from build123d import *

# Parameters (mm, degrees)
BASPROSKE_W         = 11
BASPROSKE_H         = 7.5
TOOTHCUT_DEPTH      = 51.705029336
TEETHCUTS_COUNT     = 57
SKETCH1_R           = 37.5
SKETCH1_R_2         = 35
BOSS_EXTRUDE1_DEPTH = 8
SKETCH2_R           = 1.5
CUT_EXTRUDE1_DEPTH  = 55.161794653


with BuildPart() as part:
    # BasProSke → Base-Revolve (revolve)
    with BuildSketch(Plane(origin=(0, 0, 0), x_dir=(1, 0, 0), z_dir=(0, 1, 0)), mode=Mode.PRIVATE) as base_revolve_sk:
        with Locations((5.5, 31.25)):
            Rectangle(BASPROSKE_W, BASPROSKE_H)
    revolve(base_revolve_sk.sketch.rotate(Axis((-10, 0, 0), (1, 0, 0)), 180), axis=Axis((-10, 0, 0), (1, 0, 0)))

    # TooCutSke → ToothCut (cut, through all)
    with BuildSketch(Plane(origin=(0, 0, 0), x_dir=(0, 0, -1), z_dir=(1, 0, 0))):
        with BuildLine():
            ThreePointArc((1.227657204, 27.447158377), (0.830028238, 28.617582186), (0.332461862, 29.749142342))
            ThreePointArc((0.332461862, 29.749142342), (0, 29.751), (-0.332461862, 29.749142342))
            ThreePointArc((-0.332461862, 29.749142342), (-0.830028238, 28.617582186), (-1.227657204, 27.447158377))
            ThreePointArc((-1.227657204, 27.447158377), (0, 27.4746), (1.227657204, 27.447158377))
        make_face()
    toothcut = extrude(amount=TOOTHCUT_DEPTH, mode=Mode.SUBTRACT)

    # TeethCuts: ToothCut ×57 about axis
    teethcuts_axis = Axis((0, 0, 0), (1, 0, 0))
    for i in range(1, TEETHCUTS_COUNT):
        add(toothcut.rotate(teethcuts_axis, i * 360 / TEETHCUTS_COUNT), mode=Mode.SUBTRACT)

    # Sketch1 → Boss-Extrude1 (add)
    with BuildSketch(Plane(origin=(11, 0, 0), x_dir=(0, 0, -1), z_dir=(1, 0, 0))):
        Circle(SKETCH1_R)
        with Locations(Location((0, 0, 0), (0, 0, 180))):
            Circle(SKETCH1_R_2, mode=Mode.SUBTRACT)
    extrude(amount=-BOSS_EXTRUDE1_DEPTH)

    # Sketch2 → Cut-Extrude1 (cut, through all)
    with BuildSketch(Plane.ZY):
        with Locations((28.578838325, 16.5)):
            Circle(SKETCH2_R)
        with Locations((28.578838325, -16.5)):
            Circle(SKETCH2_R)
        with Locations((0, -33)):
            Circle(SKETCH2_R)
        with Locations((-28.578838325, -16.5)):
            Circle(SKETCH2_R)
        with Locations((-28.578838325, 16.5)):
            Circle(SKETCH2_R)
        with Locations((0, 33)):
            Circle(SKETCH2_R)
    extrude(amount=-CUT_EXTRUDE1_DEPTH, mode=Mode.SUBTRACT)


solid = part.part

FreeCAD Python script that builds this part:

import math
import FreeCAD as App
import Part
import Sketcher
from FreeCAD import Vector


def add_polygon(sketch, points):
    """Adds a closed chain of lines whose ends are joined by coincident constraints."""
    first, n = sketch.GeometryCount, len(points)
    for a, b in zip(points, points[1:] + points[:1]):
        sketch.addGeometry(Part.LineSegment(App.Vector(*a, 0), App.Vector(*b, 0)), False)
    for i in range(n):
        sketch.addConstraint(Sketcher.Constraint("Coincident", first + i, 2, first + (i + 1) % n, 1))

doc = App.newDocument("Part")
body = doc.addObject("PartDesign::Body", "Body")

sketch1 = body.newObject("Sketcher::SketchObject", "Sketch")
sketch1.AttachmentSupport = (doc.getObject("XZ_Plane"), [""])
sketch1.MapMode = "FlatFace"
add_polygon(sketch1, [(0, -35), (0, -28), (11, -28), (11, -35)])
sketch1.addConstraint([
    Sketcher.Constraint("Vertical", 0),
    Sketcher.Constraint("Horizontal", 1),
    Sketcher.Constraint("Vertical", 2),
    Sketcher.Constraint("Horizontal", 3),
    Sketcher.Constraint("PointOnObject", 0, 2, -2),
    Sketcher.Constraint("DistanceX", 1, 1, 1, 2, 11.0),
    Sketcher.Constraint("DistanceY", 0, 1, 0, 2, 7.5),
    Sketcher.Constraint("DistanceY", 2, 2, -1, 1, 35.0),
])
revolution = body.newObject("PartDesign::Revolution", "Revolution")
revolution.Profile = sketch1
revolution.ReferenceAxis = (sketch1, ["H_Axis"])
revolution.Angle = 360

sketch2 = body.newObject("Sketcher::SketchObject", "Sketch001")
sketch2.AttachmentSupport = (doc.getObject("YZ_Plane"), [""])
sketch2.MapMode = "FlatFace"
sketch2.addGeometry([
    Part.ArcOfCircle(Part.Circle(Vector(23.5, 12.5, 0), Vector(0, 0, 1), 14.2), math.radians(-73.72), math.radians(-63.78)),
    Part.ArcOfCircle(Part.Circle(Vector(0, 0, 0), Vector(0, 0, 1), 29.8), math.radians(-0.64), math.radians(0.64)),
    Part.ArcOfCircle(Part.Circle(Vector(23.5, -12.5, 0), Vector(0, 0, 1), 14.2), math.radians(63.78), math.radians(73.72)),
    Part.ArcOfCircle(Part.Circle(Vector(0, 0, 0), Vector(0, 0, 1), 27.5), math.radians(-2.56), math.radians(2.56)),
], False)
sketch2.addConstraint([
    Sketcher.Constraint("Coincident", 0, 2, 1, 1),
    Sketcher.Constraint("Coincident", 1, 2, 2, 1),
    Sketcher.Constraint("Coincident", 2, 2, 3, 2),
    Sketcher.Constraint("Coincident", 3, 1, 0, 1),
    Sketcher.Constraint("Coincident", 1, 3, -1, 1),
    Sketcher.Constraint("Coincident", 3, 3, -1, 1),
    Sketcher.Constraint("Equal", 0, 2),
    Sketcher.Constraint("Symmetric", 0, 3, 2, 3, -1),
    Sketcher.Constraint("Radius", 0, 14.25),
    Sketcher.Constraint("Radius", 3, 27.4746),
    Sketcher.Constraint("Radius", 1, 29.750993),
    Sketcher.Constraint("DistanceY", -1, 1, 0, 3, 12.451079),
    Sketcher.Constraint("DistanceY", 0, 2, -1, 1, 0.332462),
])
pocket1 = body.newObject("PartDesign::Pocket", "Pocket")
pocket1.Profile = sketch2
pocket1.Type = "ThroughAll"
pocket1.Reversed = True
doc.recompute()

polarpattern = body.newObject("PartDesign::PolarPattern", "PolarPattern")
polarpattern.Originals = [pocket1]
polarpattern.Axis = (doc.getObject("X_Axis"), [""])
polarpattern.Angle = 360
polarpattern.Occurrences = 57
body.Tip = polarpattern

sketch3 = body.newObject("Sketcher::SketchObject", "Sketch002")
sketch3.AttachmentSupport = (doc.getObject("YZ_Plane"), [""])
sketch3.MapMode = "FlatFace"
sketch3.AttachmentOffset = App.Placement(Vector(0, 0, 11), App.Rotation())
sketch3.addGeometry([
    Part.Circle(Vector(0, 0, 0), Vector(0, 0, 1), 38),
    Part.Circle(Vector(0, 0, 0), Vector(0, 0, 1), 35),
], False)
sketch3.addConstraint([
    Sketcher.Constraint("Coincident", 0, 3, -1, 1),
    Sketcher.Constraint("Coincident", 1, 3, -1, 1),
    Sketcher.Constraint("Diameter", 0, 75.0),
    Sketcher.Constraint("Diameter", 1, 70.0),
])
pad1 = body.newObject("PartDesign::Pad", "Pad")
pad1.Profile = sketch3
pad1.Length = 8
pad1.Reversed = True

sketch4 = body.newObject("Sketcher::SketchObject", "Sketch003")
sketch4.AttachmentSupport = (doc.getObject("YZ_Plane"), [""])
sketch4.MapMode = "FlatFace"
sketch4.addGeometry([
    Part.Circle(Vector(16.5, 28.6, 0), Vector(0, 0, 1), 1.5),
    Part.Circle(Vector(-16.5, 28.6, 0), Vector(0, 0, 1), 1.5),
    Part.Circle(Vector(-33, 0, 0), Vector(0, 0, 1), 1.5),
    Part.Circle(Vector(-16.5, -28.6, 0), Vector(0, 0, 1), 1.5),
    Part.Circle(Vector(16.5, -28.6, 0), Vector(0, 0, 1), 1.5),
    Part.Circle(Vector(33, 0, 0), Vector(0, 0, 1), 1.5),
], False)
sketch4.addConstraint([
    Sketcher.Constraint("Equal", 0, 1),
    Sketcher.Constraint("Equal", 1, 2),
    Sketcher.Constraint("Equal", 2, 3),
    Sketcher.Constraint("Equal", 3, 4),
    Sketcher.Constraint("Equal", 4, 5),
    Sketcher.Constraint("Symmetric", 0, 3, 3, 3, -1, 1),
    Sketcher.Constraint("Symmetric", 1, 3, 4, 3, -1, 1),
    Sketcher.Constraint("Symmetric", 2, 3, 5, 3, -1, 1),
    Sketcher.Constraint("Symmetric", 0, 3, 1, 3, -2),
    Sketcher.Constraint("PointOnObject", 2, 3, -1),
    Sketcher.Constraint("Diameter", 0, 3.0),
    Sketcher.Constraint("DistanceX", 2, 3, -1, 1, 33.0),
    Sketcher.Constraint("DistanceX", 1, 3, 0, 3, 33.0),
    Sketcher.Constraint("DistanceY", -1, 1, 0, 3, 28.578838),
])
pocket2 = body.newObject("PartDesign::Pocket", "Pocket001")
pocket2.Profile = sketch4
pocket2.Type = "ThroughAll"
pocket2.Reversed = True

doc.recompute()
